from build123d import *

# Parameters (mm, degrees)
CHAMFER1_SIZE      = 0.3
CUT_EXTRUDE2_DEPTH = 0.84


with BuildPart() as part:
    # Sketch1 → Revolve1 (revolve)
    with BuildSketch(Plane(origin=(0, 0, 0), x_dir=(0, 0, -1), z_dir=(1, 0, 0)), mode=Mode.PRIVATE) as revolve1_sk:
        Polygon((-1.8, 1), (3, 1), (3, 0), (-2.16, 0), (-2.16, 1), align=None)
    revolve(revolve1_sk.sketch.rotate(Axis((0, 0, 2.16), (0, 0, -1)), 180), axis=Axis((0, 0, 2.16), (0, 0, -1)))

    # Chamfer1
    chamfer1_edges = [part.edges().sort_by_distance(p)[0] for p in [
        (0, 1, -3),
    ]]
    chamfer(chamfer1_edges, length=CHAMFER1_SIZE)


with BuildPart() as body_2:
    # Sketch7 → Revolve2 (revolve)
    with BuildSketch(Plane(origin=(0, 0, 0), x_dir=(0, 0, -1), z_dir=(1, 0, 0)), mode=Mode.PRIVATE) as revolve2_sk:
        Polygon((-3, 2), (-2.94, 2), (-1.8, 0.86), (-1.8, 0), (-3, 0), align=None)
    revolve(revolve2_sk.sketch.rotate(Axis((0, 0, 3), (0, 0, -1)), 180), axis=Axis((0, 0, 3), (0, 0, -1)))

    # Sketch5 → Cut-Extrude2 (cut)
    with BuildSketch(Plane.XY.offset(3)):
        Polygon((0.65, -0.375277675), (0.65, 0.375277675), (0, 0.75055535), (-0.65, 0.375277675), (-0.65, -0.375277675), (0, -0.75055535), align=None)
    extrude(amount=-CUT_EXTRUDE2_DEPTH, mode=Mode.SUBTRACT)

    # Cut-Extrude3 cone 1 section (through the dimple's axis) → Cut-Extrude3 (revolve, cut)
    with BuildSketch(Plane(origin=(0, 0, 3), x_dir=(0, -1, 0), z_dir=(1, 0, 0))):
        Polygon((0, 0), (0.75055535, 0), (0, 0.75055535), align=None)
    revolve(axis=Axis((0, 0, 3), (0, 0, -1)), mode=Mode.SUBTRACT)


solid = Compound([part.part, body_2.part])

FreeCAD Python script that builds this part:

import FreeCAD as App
import Part
import Sketcher
from FreeCAD import Vector
Q = App.Units.Quantity


def edges_at(feature, points):
    """Names of the edges that pass closest to the given points."""
    edges = feature.Shape.Edges
    near = lambda p: min(range(len(edges)), key=lambda i: edges[i].distToShape(Part.Vertex(*p))[0])
    return sorted({f"Edge{near(p) + 1}" for p in points})


def add_polygon(sketch, points):
    """Adds a closed chain of lines whose ends are joined by coincident constraints."""
    first, n = sketch.GeometryCount, len(points)
    for a, b in zip(points, points[1:] + points[:1]):
        sketch.addGeometry(Part.LineSegment(App.Vector(*a, 0), App.Vector(*b, 0)), False)
    for i in range(n):
        sketch.addConstraint(Sketcher.Constraint("Coincident", first + i, 2, first + (i + 1) % n, 1))

doc = App.newDocument("Part")
body = doc.addObject("PartDesign::Body", "Body")

sketch1 = body.newObject("Sketcher::SketchObject", "Sketch")
sketch1.AttachmentSupport = (doc.getObject("YZ_Plane"), [""])
sketch1.MapMode = "FlatFace"
add_polygon(sketch1, [(1, -3), (1, 2.16), (0, 2.16), (0, -3)])
sketch1.addConstraint([
    Sketcher.Constraint("Vertical", 0),
    Sketcher.Constraint("Horizontal", 1),
    Sketcher.Constraint("Vertical", 2),
    Sketcher.Constraint("Horizontal", 3),
    Sketcher.Constraint("PointOnObject", 1, 2, -2),
    Sketcher.Constraint("DistanceX", 1, 2, 1, 1, 1.0),
    Sketcher.Constraint("DistanceY", 2, 2, -1, 1, 3.0),
    Sketcher.Constraint("DistanceY", 0, 1, 0, 2, 5.16),
])
revolution = body.newObject("PartDesign::Revolution", "Revolution")
revolution.Profile = sketch1
revolution.ReferenceAxis = (sketch1, ["V_Axis"])
revolution.Angle = 360
doc.recompute()

chamfer = body.newObject("PartDesign::Chamfer", "Chamfer")
chamfer.Base = (revolution, edges_at(revolution, [(0, 1, -3)]))
chamfer.Size = 0.3
body2 = doc.addObject("PartDesign::Body", "Body001")

sketch2 = body2.newObject("Sketcher::SketchObject", "Sketch001")
sketch2.AttachmentSupport = (doc.getObject("YZ_Plane001"), [""])
sketch2.MapMode = "FlatFace"
add_polygon(sketch2, [(2, 2.94), (2, 3), (0, 3), (0, 1.8), (0.86, 1.8)])
sketch2.addConstraint([
    Sketcher.Constraint("Vertical", 0),
    Sketcher.Constraint("Horizontal", 1),
    Sketcher.Constraint("Vertical", 2),
    Sketcher.Constraint("Horizontal", 3),
    Sketcher.Constraint("PointOnObject", 1, 2, -2),
    Sketcher.Constraint("DistanceX", 1, 2, 1, 1, 2.0),
    Sketcher.Constraint("Angle", 4, Q("45 deg")),
    Sketcher.Constraint("DistanceY", 2, 2, 2, 1, 1.2),
    Sketcher.Constraint("DistanceY", -1, 1, 0, 2, 3.0),
    Sketcher.Constraint("DistanceX", 3, 1, 3, 2, 0.86),
])
revolution2 = body2.newObject("PartDesign::Revolution", "Revolution001")
revolution2.Profile = sketch2
revolution2.ReferenceAxis = (sketch2, ["V_Axis"])
revolution2.Angle = 360

sketch3 = body2.newObject("Sketcher::SketchObject", "Sketch002")
sketch3.AttachmentSupport = (doc.getObject("XY_Plane001"), [""])
sketch3.MapMode = "FlatFace"
sketch3.AttachmentOffset = App.Placement(Vector(0, 0, 3), App.Rotation())
add_polygon(sketch3, [(0.65, -0.375278), (0.65, 0.375278), (0, 0.750555), (-0.65, 0.375278), (-0.65, -0.375278), (0, -0.750555)])
sketch3.addConstraint([
    Sketcher.Constraint("Vertical", 0),
    Sketcher.Constraint("Vertical", 3),
    Sketcher.Constraint("Symmetric", 0, 2, 3, 2, -1, 1),
    Sketcher.Constraint("Symmetric", 1, 2, 4, 2, -1, 1),
    Sketcher.Constraint("PointOnObject", 1, 2, -2),
    Sketcher.Constraint("Parallel", 2, 5),
    Sketcher.Constraint("Horizontal", 0, 2, 2, 2),
    Sketcher.Constraint("Angle", 1, Q("150 deg")),
    Sketcher.Constraint("DistanceX", 2, 2, 0, 2, 1.3),
    Sketcher.Constraint("DistanceY", 0, 1, 0, 2, 0.750555),
])
pocket1 = body2.newObject("PartDesign::Pocket", "Pocket")
pocket1.Profile = sketch3
pocket1.Length = 0.84

sketch4 = body2.newObject("Sketcher::SketchObject", "Sketch003")
sketch4.AttachmentSupport = (doc.getObject("YZ_Plane001"), [""])
sketch4.MapMode = "FlatFace"
add_polygon(sketch4, [(0, 3), (-0.750555, 3), (0, 2.249445)])
sketch4.addConstraint([
    Sketcher.Constraint("Horizontal", 0),
    Sketcher.Constraint("Vertical", 2),
    Sketcher.Constraint("PointOnObject", 1, 2, -2),
    Sketcher.Constraint("Equal", 0, 2),
    Sketcher.Constraint("DistanceY", -1, 1, 0, 2, 3.0),
    Sketcher.Constraint("DistanceX", 0, 2, 0, 1, 0.750555),
])
groove = body2.newObject("PartDesign::Groove", "Groove")
groove.Profile = sketch4
groove.ReferenceAxis = (sketch4, ["V_Axis"])
groove.Angle = 360

doc.recompute()
